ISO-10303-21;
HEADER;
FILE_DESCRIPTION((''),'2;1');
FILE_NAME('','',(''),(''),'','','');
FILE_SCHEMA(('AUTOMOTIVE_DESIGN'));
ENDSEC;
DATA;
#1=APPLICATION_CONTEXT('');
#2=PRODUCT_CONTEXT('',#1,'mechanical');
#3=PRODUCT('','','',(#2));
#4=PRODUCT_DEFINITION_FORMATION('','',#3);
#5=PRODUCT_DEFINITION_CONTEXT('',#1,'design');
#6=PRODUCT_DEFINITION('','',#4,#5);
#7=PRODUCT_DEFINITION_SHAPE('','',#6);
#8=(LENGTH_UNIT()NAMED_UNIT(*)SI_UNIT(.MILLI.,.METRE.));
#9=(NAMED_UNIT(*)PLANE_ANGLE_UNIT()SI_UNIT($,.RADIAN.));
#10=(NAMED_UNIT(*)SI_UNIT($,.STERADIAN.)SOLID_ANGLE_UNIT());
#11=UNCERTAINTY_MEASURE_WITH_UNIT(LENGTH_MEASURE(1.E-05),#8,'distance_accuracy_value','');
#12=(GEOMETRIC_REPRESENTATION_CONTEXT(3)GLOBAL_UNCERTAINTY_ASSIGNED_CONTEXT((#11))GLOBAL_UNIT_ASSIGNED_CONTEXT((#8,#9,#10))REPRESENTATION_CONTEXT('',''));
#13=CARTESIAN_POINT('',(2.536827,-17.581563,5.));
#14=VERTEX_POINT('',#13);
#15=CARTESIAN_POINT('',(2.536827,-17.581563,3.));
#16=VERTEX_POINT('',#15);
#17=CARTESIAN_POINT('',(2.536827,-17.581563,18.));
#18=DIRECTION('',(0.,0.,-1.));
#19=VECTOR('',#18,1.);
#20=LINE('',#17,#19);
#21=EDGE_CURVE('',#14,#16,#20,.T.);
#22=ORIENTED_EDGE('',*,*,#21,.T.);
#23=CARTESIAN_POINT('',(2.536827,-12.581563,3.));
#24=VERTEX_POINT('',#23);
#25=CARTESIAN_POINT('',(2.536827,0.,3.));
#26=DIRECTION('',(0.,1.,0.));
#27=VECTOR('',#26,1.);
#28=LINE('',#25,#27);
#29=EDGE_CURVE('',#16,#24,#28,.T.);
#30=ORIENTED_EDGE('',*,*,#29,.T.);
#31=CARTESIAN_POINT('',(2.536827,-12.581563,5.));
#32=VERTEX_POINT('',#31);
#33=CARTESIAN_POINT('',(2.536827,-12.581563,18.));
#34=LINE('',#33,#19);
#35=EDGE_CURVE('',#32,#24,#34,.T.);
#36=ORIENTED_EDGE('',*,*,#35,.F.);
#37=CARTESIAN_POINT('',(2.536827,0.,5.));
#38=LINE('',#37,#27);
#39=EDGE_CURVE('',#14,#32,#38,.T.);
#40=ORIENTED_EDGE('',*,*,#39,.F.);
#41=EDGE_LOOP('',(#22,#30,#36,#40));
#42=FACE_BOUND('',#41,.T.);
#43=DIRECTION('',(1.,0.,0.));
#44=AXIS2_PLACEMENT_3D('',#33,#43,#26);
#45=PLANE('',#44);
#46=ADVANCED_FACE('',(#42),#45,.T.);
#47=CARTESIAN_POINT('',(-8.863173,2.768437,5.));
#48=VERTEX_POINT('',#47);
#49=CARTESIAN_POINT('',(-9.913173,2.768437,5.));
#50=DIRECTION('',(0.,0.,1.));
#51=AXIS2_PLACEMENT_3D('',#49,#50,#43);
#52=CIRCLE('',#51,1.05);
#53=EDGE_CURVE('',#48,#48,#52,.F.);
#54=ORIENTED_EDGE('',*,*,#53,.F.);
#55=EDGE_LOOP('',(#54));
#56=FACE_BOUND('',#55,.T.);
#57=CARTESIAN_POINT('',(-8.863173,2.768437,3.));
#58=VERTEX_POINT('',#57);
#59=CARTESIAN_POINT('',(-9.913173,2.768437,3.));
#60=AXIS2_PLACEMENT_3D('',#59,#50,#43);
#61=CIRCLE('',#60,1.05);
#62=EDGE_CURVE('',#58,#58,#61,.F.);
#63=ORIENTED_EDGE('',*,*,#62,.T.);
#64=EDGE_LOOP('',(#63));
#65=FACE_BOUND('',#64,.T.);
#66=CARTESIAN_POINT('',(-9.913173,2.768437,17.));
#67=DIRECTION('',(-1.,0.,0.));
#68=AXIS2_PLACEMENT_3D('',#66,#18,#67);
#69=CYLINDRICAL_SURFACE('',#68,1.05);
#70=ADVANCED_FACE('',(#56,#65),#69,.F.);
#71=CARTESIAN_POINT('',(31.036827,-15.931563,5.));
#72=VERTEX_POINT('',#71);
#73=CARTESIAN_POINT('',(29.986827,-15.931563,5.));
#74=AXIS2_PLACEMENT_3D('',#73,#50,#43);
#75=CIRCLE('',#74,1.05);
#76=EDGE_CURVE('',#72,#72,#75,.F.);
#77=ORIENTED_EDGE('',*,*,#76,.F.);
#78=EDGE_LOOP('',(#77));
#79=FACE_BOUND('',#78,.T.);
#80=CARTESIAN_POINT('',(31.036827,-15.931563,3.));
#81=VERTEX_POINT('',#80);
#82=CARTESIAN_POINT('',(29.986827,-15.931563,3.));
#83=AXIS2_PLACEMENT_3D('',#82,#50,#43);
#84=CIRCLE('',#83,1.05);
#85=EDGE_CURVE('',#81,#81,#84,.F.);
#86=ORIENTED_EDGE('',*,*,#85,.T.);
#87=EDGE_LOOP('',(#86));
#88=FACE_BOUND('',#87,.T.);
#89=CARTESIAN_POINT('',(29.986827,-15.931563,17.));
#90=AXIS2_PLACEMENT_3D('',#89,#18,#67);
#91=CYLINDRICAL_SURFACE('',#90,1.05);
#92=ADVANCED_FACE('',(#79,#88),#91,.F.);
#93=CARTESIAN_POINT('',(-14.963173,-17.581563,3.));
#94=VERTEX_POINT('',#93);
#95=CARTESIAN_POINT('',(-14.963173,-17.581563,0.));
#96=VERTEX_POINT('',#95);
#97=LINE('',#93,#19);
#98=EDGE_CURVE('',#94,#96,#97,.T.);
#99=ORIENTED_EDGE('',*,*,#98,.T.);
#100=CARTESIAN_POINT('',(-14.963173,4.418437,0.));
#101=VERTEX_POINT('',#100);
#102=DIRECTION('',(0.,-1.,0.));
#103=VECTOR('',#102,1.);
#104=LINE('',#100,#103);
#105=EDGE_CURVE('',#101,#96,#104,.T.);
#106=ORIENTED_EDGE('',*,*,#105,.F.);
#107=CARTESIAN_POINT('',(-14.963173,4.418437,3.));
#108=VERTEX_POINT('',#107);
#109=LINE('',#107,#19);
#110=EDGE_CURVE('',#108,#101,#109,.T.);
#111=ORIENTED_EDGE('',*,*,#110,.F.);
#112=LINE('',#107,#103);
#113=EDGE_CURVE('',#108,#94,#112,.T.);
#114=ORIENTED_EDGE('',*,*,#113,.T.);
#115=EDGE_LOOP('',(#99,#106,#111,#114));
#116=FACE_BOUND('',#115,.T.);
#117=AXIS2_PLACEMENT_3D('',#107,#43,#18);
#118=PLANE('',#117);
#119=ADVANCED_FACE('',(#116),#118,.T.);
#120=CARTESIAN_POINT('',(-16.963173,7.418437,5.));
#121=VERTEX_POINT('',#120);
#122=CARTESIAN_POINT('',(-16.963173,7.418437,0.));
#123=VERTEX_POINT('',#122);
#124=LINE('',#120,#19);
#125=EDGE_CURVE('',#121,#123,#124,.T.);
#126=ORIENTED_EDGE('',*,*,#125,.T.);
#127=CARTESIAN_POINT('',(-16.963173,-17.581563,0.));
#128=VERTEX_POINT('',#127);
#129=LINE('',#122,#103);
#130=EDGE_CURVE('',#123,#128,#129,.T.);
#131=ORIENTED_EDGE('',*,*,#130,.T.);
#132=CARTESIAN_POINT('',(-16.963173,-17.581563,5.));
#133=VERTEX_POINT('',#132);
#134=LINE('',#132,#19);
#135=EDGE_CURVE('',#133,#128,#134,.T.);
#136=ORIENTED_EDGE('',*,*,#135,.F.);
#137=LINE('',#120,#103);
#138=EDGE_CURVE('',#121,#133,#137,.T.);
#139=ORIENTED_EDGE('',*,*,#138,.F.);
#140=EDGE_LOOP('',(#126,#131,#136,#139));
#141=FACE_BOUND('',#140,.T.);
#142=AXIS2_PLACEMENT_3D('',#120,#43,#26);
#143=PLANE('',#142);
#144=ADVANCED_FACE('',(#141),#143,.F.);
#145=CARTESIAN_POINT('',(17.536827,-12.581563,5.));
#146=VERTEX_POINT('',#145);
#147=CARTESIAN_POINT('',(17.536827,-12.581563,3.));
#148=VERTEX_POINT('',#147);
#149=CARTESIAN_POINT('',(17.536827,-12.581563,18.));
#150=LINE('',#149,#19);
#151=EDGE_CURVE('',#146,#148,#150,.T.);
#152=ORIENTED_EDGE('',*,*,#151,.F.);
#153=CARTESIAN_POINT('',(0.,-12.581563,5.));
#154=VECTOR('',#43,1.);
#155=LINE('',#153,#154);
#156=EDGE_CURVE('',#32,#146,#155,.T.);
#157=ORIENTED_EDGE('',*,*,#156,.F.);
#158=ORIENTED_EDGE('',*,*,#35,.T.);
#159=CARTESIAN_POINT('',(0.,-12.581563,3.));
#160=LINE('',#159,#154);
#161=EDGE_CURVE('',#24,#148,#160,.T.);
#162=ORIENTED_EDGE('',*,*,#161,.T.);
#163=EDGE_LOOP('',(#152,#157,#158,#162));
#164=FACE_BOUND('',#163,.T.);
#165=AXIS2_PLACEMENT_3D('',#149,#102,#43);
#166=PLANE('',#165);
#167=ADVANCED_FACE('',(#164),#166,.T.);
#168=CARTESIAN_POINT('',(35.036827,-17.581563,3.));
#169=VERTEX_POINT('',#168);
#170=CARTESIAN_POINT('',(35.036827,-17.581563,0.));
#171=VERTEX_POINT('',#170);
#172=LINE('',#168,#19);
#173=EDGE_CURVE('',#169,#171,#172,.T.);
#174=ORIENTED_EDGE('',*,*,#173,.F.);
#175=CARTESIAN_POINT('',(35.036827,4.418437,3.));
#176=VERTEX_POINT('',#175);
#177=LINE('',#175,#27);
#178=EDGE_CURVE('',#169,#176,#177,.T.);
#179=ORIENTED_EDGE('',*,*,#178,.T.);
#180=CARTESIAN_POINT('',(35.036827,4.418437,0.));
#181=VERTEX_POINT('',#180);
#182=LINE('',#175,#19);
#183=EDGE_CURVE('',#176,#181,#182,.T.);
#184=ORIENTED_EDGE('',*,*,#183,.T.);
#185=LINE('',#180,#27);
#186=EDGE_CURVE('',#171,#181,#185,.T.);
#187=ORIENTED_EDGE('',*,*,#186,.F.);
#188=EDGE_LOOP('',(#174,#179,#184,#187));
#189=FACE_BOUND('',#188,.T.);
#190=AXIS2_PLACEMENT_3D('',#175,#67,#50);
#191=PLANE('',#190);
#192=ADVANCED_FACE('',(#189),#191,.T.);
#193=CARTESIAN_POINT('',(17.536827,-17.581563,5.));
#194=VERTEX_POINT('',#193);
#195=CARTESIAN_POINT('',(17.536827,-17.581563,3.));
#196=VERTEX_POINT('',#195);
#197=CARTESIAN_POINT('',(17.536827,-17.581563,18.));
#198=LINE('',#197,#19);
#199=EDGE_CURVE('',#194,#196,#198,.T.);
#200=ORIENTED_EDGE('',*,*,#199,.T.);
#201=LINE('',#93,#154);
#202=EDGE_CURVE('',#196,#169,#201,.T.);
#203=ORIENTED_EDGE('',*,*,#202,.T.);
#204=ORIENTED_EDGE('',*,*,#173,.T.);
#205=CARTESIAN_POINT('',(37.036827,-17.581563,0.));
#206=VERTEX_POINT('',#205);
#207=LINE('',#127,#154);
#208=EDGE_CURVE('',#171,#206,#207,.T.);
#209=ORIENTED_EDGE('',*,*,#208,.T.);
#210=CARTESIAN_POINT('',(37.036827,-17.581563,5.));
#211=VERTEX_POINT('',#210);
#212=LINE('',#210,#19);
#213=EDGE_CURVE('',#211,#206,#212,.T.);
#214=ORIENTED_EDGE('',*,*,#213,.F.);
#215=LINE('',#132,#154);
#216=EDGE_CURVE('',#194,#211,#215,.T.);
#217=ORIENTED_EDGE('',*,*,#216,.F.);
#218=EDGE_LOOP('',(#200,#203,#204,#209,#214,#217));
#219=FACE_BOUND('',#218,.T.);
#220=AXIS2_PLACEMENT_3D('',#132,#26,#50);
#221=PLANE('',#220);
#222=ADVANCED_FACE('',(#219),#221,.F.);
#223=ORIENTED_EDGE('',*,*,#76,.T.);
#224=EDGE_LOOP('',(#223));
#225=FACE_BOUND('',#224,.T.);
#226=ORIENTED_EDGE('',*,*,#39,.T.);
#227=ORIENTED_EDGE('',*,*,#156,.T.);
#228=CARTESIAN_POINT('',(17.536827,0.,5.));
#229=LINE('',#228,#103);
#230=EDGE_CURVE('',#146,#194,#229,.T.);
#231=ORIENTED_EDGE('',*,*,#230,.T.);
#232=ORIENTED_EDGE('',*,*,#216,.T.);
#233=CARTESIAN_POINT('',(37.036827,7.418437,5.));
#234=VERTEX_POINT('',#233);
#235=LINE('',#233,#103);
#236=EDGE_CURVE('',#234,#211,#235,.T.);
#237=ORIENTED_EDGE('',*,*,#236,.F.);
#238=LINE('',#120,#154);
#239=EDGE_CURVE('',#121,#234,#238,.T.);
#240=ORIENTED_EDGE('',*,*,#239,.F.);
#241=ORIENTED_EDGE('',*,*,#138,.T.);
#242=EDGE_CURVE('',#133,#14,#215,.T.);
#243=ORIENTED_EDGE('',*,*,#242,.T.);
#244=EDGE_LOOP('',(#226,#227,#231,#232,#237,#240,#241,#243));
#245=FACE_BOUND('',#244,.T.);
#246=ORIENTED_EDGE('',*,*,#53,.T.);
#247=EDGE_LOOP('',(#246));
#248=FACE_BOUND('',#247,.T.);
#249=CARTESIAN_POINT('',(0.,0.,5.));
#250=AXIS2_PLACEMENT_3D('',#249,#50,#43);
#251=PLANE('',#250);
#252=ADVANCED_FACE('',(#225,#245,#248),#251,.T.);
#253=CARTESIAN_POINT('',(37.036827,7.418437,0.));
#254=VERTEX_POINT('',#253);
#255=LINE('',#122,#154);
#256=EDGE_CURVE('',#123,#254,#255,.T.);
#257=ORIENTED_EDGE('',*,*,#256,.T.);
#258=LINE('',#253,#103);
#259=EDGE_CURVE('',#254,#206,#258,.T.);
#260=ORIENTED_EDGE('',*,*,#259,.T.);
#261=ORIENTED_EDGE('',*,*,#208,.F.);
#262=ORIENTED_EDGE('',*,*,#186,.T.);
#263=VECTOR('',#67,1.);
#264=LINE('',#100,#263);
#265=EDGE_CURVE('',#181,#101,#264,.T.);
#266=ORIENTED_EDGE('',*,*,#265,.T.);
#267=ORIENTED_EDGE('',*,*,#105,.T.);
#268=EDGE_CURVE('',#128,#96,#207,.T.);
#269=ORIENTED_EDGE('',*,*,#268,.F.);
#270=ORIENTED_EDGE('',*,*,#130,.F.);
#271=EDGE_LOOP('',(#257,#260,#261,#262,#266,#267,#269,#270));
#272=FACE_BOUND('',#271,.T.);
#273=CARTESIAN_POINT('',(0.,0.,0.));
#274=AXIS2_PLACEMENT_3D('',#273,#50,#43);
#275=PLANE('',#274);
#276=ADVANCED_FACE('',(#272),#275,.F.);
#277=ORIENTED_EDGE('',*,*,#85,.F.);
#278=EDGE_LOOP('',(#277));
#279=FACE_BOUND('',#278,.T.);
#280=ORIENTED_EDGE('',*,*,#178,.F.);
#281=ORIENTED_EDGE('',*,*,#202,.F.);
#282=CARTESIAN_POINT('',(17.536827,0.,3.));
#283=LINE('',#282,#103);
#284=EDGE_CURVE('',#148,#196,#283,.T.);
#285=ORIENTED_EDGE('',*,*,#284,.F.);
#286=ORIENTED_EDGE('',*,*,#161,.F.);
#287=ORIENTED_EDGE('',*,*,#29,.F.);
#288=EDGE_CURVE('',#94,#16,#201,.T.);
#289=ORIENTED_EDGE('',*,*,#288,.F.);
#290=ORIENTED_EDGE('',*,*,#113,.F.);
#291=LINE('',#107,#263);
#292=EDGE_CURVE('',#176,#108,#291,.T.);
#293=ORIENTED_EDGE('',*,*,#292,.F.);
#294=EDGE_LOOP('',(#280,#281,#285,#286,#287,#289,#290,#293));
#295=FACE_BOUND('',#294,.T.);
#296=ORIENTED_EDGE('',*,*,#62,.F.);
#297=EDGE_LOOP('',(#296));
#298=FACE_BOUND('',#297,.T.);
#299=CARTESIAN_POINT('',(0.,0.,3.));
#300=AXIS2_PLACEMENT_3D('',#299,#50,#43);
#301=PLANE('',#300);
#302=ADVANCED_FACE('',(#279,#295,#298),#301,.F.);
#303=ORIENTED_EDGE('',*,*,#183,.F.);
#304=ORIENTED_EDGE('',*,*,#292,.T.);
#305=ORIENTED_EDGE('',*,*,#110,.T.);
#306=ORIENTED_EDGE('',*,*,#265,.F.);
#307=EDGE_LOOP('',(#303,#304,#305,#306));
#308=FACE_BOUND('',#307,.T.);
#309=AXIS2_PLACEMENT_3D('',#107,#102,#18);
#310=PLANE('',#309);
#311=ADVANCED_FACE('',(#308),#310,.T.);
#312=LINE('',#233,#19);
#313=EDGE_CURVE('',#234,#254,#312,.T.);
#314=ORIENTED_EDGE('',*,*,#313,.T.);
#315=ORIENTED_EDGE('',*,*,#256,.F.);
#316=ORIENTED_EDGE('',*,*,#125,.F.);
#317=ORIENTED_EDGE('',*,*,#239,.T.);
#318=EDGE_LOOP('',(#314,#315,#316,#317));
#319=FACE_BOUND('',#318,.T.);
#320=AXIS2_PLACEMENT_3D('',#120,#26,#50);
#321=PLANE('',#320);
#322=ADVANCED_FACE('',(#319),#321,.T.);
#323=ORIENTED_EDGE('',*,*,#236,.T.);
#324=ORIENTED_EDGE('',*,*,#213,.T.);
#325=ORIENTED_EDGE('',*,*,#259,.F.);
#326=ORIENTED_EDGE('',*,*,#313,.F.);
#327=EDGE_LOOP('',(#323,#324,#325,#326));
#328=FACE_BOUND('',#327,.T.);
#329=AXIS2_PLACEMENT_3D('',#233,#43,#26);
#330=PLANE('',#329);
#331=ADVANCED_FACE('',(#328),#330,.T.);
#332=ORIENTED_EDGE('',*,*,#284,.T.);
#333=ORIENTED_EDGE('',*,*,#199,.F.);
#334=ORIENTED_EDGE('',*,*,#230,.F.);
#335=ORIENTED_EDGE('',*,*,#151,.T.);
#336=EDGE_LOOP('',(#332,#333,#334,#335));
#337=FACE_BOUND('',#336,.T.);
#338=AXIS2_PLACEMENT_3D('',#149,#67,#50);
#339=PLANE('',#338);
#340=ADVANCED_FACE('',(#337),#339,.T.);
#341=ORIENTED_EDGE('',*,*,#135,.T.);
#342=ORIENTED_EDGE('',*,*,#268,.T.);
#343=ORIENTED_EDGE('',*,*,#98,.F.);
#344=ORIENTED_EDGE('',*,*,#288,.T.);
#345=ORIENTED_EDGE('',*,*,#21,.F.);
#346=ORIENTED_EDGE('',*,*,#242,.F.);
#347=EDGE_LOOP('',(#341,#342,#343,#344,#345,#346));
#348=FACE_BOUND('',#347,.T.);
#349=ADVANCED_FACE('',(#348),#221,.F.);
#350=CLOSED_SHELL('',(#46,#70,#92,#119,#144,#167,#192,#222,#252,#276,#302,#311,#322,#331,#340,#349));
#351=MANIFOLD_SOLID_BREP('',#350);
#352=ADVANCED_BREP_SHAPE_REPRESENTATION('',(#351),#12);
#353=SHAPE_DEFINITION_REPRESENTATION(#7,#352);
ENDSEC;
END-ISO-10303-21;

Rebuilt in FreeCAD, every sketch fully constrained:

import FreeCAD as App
import Part
import Sketcher

V = App.Vector
Q = App.Units.Quantity


def add_polygon(sketch, points):
    """Adds a closed chain of lines whose ends are joined by coincident constraints."""
    first, n = sketch.GeometryCount, len(points)
    for a, b in zip(points, points[1:] + points[:1]):
        sketch.addGeometry(Part.LineSegment(App.Vector(*a, 0), App.Vector(*b, 0)), False)
    for i in range(n):
        sketch.addConstraint(Sketcher.Constraint("Coincident", first + i, 2, first + (i + 1) % n, 1))

doc = App.newDocument("Part")
params = doc.addObject("Spreadsheet::Sheet", "Params")
for row, (alias, value) in enumerate([
    ("sketch1_width", "54 mm"),
    ("sketch1_height", "25 mm"),
    ("pad1_length", "5 mm"),
    ("sketch2_width", "50 mm"),
    ("sketch2_height", "22 mm"),
    ("pocket1_length", "3 mm"),
    ("sketch3_diameter", "2.1 mm"),
    ("pocket2_length", "17 mm"),
    ("sketch4_width", "15 mm"),
    ("sketch4_height", "5 mm"),
    ("pocket3_length", "18 mm"),
], start=1):
    params.set(f"A{row}", alias)
    params.set(f"B{row}", "=" + value)
    params.setAlias(f"B{row}", alias)

body = doc.addObject("PartDesign::Body", "Body")

sketch1 = body.newObject("Sketcher::SketchObject", "Sketch")
sketch1.AttachmentSupport = (doc.getObject("XY_Plane"), [""])
sketch1.MapMode = "FlatFace"
add_polygon(sketch1, [(-16.963173, 7.418437), (-16.963173, -17.581563), (37.036827, -17.581563), (37.036827, 7.418437)])
sketch1.addConstraint([
    Sketcher.Constraint("Vertical", 0),
    Sketcher.Constraint("Horizontal", 1),
    Sketcher.Constraint("Vertical", 2),
    Sketcher.Constraint("Horizontal", 3),
    Sketcher.Constraint("DistanceX", 1, 1, 1, 2, Q("54 mm")),
    Sketcher.Constraint("DistanceY", 0, 2, 0, 1, Q("25 mm")),
    Sketcher.Constraint("DistanceX", 0, 2, -1, 1, Q("16.963173 mm")),
    Sketcher.Constraint("DistanceY", 0, 2, -1, 1, Q("17.581563 mm")),
])
sketch1.setExpression("Constraints[8]", "Params.sketch1_width")
sketch1.setExpression("Constraints[9]", "Params.sketch1_height")
pad1 = body.newObject("PartDesign::Pad", "Pad")
pad1.Profile = sketch1
pad1.setExpression("Length", "Params.pad1_length")

sketch2 = body.newObject("Sketcher::SketchObject", "Sketch001")
sketch2.AttachmentSupport = (doc.getObject("XY_Plane"), [""])
sketch2.MapMode = "FlatFace"
add_polygon(sketch2, [(-14.963173, 4.418437), (-14.963173, -17.581563), (35.036827, -17.581563), (35.036827, 4.418437)])
sketch2.addConstraint([
    Sketcher.Constraint("Vertical", 0),
    Sketcher.Constraint("Horizontal", 1),
    Sketcher.Constraint("Vertical", 2),
    Sketcher.Constraint("Horizontal", 3),
    Sketcher.Constraint("DistanceX", 1, 1, 1, 2, Q("50 mm")),
    Sketcher.Constraint("DistanceY", 0, 2, 0, 1, Q("22 mm")),
    Sketcher.Constraint("DistanceX", 0, 2, -1, 1, Q("14.963173 mm")),
    Sketcher.Constraint("DistanceY", 0, 2, -1, 1, Q("17.581563 mm")),
])
sketch2.setExpression("Constraints[8]", "Params.sketch2_width")
sketch2.setExpression("Constraints[9]", "Params.sketch2_height")
pocket1 = body.newObject("PartDesign::Pocket", "Pocket")
pocket1.Profile = sketch2
pocket1.setExpression("Length", "Params.pocket1_length")
pocket1.Reversed = True

sketch3 = body.newObject("Sketcher::SketchObject", "Sketch002")
sketch3.AttachmentSupport = (doc.getObject("XY_Plane"), [""])
sketch3.MapMode = "FlatFace"
sketch3.addGeometry([
    Part.Circle(V(29.986827, -15.931563, 0), V(0, 0, 1), 1.05),
    Part.Circle(V(-9.913173, 2.768437, 0), V(0, 0, 1), 1.05),
], False)
sketch3.addConstraint([
    Sketcher.Constraint("Equal", 0, 1),
    Sketcher.Constraint("Diameter", 0, Q("2.1 mm")),
    Sketcher.Constraint("DistanceX", 1, 3, 0, 3, Q("39.9 mm")),
    Sketcher.Constraint("DistanceY", 0, 3, 1, 3, Q("18.7 mm")),
    Sketcher.Constraint("DistanceX", -1, 1, 0, 3, Q("29.986827 mm")),
    Sketcher.Constraint("DistanceY", 0, 3, -1, 1, Q("15.931563 mm")),
])
sketch3.setExpression("Constraints[1]", "Params.sketch3_diameter")
pocket2 = body.newObject("PartDesign::Pocket", "Pocket001")
pocket2.Profile = sketch3
pocket2.setExpression("Length", "Params.pocket2_length")
pocket2.Reversed = True

sketch4 = body.newObject("Sketcher::SketchObject", "Sketch003")
sketch4.AttachmentSupport = (doc.getObject("XY_Plane"), [""])
sketch4.MapMode = "FlatFace"
add_polygon(sketch4, [(2.536827, -12.581563), (2.536827, -17.581563), (17.536827, -17.581563), (17.536827, -12.581563)])
sketch4.addConstraint([
    Sketcher.Constraint("Vertical", 0),
    Sketcher.Constraint("Horizontal", 1),
    Sketcher.Constraint("Vertical", 2),
    Sketcher.Constraint("Horizontal", 3),
    Sketcher.Constraint("DistanceX", 1, 1, 1, 2, Q("15 mm")),
    Sketcher.Constraint("DistanceY", 0, 2, 0, 1, Q("5 mm")),
    Sketcher.Constraint("DistanceX", -1, 1, 0, 2, Q("2.536827 mm")),
    Sketcher.Constraint("DistanceY", 0, 2, -1, 1, Q("17.581563 mm")),
])
sketch4.setExpression("Constraints[8]", "Params.sketch4_width")
sketch4.setExpression("Constraints[9]", "Params.sketch4_height")
pocket3 = body.newObject("PartDesign::Pocket", "Pocket002")
pocket3.Profile = sketch4
pocket3.setExpression("Length", "Params.pocket3_length")
pocket3.Reversed = True

doc.recompute()
